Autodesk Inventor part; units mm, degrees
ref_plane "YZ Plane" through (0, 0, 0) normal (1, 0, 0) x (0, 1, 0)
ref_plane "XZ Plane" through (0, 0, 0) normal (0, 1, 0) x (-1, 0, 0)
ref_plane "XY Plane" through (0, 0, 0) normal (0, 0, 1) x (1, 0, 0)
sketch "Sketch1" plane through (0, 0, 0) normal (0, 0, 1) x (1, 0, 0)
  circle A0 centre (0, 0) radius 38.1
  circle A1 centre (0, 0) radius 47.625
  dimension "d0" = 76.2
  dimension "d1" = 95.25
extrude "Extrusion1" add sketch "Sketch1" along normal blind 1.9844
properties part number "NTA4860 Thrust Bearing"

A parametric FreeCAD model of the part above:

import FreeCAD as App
import Part
import Sketcher
from FreeCAD import Vector
Q = App.Units.Quantity

doc = App.newDocument("Part")
body = doc.addObject("PartDesign::Body", "Body")

# Sketch on XY plane
sketch1 = doc.addObject("Sketcher::SketchObject", "Sketch")
body.addObject(sketch1)
sketch1.AttachmentSupport = (doc.XY_Plane, [""])
sketch1.MapMode = "FlatFace"
sketch1.addGeometry(Part.Circle(Vector(0, 0, 0), Vector(0, 0, 1), 48), False)
sketch1.addGeometry(Part.Circle(Vector(0, 0, 0), Vector(0, 0, 1), 38), False)
sketch1.addConstraint(Sketcher.Constraint("Coincident", 0, 3, -1, 1))
sketch1.addConstraint(Sketcher.Constraint("Coincident", 1, 3, -1, 1))
sketch1.addConstraint(Sketcher.Constraint("Diameter", 1, Q("3 in")))
sketch1.addConstraint(Sketcher.Constraint("Diameter", 0, Q("3.75 in")))
pad1 = doc.addObject("PartDesign::Pad", "Pad")
body.addObject(pad1)
pad1.Profile = sketch1
pad1.Length = Q("0.078126 in")

doc.recompute()
